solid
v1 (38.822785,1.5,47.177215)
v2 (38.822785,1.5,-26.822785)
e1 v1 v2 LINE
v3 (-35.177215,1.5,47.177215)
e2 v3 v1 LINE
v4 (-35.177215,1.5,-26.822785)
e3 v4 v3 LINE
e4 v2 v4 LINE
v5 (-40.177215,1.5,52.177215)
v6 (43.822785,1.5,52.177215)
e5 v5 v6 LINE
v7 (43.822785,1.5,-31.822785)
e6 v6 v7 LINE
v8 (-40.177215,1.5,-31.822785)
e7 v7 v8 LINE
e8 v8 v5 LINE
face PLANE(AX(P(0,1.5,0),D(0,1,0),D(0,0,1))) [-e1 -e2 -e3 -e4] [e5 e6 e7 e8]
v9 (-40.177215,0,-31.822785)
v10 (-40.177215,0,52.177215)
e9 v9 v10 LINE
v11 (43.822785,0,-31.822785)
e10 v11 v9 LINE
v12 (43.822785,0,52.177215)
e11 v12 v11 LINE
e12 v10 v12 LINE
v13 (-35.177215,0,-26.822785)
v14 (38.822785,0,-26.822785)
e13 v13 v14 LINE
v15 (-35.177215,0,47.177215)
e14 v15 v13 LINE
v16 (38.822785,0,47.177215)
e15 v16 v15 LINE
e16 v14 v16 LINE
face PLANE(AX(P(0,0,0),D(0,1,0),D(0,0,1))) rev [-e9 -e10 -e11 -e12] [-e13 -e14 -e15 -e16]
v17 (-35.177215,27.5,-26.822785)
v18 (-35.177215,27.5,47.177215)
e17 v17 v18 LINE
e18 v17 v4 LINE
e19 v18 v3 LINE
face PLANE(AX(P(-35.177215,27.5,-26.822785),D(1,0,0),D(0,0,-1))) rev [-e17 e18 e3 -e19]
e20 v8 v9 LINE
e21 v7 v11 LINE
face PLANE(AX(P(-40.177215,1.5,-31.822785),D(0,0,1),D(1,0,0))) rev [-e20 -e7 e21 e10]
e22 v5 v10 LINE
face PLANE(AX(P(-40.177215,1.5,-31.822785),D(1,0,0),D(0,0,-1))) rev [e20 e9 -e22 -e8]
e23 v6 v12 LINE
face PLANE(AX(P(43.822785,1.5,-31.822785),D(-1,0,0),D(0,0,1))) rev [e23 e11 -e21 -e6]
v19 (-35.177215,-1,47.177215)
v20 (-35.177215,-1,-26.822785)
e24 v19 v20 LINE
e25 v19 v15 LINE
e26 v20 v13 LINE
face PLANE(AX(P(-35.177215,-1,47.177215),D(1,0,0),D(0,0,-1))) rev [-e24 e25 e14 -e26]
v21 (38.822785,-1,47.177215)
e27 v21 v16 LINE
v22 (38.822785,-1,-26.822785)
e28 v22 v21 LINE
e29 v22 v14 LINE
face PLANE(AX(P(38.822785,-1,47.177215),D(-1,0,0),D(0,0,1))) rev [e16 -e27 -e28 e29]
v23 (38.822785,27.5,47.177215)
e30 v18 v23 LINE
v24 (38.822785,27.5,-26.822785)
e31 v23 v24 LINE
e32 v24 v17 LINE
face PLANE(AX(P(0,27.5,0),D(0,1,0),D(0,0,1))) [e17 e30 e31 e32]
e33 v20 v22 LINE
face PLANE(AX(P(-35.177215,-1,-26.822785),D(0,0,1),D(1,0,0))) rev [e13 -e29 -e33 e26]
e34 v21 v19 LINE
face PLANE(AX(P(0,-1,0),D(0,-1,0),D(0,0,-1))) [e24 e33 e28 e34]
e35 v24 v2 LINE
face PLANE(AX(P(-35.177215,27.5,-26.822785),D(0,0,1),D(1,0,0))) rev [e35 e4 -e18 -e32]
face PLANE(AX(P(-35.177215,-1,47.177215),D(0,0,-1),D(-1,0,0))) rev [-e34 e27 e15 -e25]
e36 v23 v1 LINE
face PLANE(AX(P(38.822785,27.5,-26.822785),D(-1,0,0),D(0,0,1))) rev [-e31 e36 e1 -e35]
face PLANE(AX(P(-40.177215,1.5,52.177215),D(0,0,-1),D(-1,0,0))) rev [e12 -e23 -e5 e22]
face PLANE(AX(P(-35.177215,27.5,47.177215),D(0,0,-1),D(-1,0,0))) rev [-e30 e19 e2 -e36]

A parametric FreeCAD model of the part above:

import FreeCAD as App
import Part
import Sketcher
Q = App.Units.Quantity

doc = App.newDocument("Part")
params = doc.addObject("Spreadsheet::Sheet", "Params")
for row, (alias, value) in enumerate([
    ("sketch1_width", "84 mm"),
    ("pad1_length", "1.5 mm"),
    ("sketch2_width", "74 mm"),
    ("pad2_length", "26 mm"),
    ("sketch3_width", "74 mm"),
    ("pad3_length", "1 mm"),
], start=1):
    params.set(f"A{row}", alias)
    params.set(f"B{row}", "=" + value)
    params.setAlias(f"B{row}", alias)

body = doc.addObject("PartDesign::Body", "Body")

sketch1 = doc.addObject("Sketcher::SketchObject", "Sketch")
body.addObject(sketch1)
sketch1.AttachmentSupport = (doc.XZ_Plane, [""])
sketch1.MapMode = "FlatFace"
sketch1.addGeometry(Part.LineSegment(App.Vector(-40, -32, 0), App.Vector(-40, 52, 0)), False)
sketch1.addGeometry(Part.LineSegment(App.Vector(-40, 52, 0), App.Vector(44, 52, 0)), False)
sketch1.addGeometry(Part.LineSegment(App.Vector(44, 52, 0), App.Vector(44, -32, 0)), False)
sketch1.addGeometry(Part.LineSegment(App.Vector(44, -32, 0), App.Vector(-40, -32, 0)), False)
sketch1.addConstraint(Sketcher.Constraint("Coincident", 0, 2, 1, 1))
sketch1.addConstraint(Sketcher.Constraint("Coincident", 1, 2, 2, 1))
sketch1.addConstraint(Sketcher.Constraint("Coincident", 2, 2, 3, 1))
sketch1.addConstraint(Sketcher.Constraint("Coincident", 3, 2, 0, 1))
sketch1.addConstraint(Sketcher.Constraint("Vertical", 0))
sketch1.addConstraint(Sketcher.Constraint("Horizontal", 1))
sketch1.addConstraint(Sketcher.Constraint("Vertical", 2))
sketch1.addConstraint(Sketcher.Constraint("Horizontal", 3))
sketch1.addConstraint(Sketcher.Constraint("Equal", 3, 0))
sketch1.addConstraint(Sketcher.Constraint("DistanceX", 1, 1, 1, 2, Q("84 mm")))
sketch1.addConstraint(Sketcher.Constraint("DistanceX", 0, 2, -1, 1, Q("40.177215 mm")))
sketch1.addConstraint(Sketcher.Constraint("DistanceY", -1, 1, 0, 2, Q("52.177215 mm")))
sketch1.setExpression("Constraints[9]", "Params.sketch1_width")
pad1 = doc.addObject("PartDesign::Pad", "Pad")
body.addObject(pad1)
pad1.Profile = sketch1
pad1.setExpression("Length", "Params.pad1_length")
pad1.Reversed = True

sketch2 = doc.addObject("Sketcher::SketchObject", "Sketch001")
body.addObject(sketch2)
sketch2.AttachmentSupport = (doc.XZ_Plane, [""])
sketch2.MapMode = "FlatFace"
sketch2.AttachmentOffset = App.Placement(App.Vector(0, 0, -1.5), App.Rotation())
sketch2.addGeometry(Part.LineSegment(App.Vector(-35, -27, 0), App.Vector(-35, 47, 0)), False)
sketch2.addGeometry(Part.LineSegment(App.Vector(-35, 47, 0), App.Vector(39, 47, 0)), False)
sketch2.addGeometry(Part.LineSegment(App.Vector(39, 47, 0), App.Vector(39, -27, 0)), False)
sketch2.addGeometry(Part.LineSegment(App.Vector(39, -27, 0), App.Vector(-35, -27, 0)), False)
sketch2.addConstraint(Sketcher.Constraint("Coincident", 0, 2, 1, 1))
sketch2.addConstraint(Sketcher.Constraint("Coincident", 1, 2, 2, 1))
sketch2.addConstraint(Sketcher.Constraint("Coincident", 2, 2, 3, 1))
sketch2.addConstraint(Sketcher.Constraint("Coincident", 3, 2, 0, 1))
sketch2.addConstraint(Sketcher.Constraint("Vertical", 0))
sketch2.addConstraint(Sketcher.Constraint("Horizontal", 1))
sketch2.addConstraint(Sketcher.Constraint("Vertical", 2))
sketch2.addConstraint(Sketcher.Constraint("Horizontal", 3))
sketch2.addConstraint(Sketcher.Constraint("Equal", 3, 0))
sketch2.addConstraint(Sketcher.Constraint("DistanceX", 1, 1, 1, 2, Q("74 mm")))
sketch2.addConstraint(Sketcher.Constraint("DistanceX", 0, 2, -1, 1, Q("35.177215 mm")))
sketch2.addConstraint(Sketcher.Constraint("DistanceY", -1, 1, 0, 2, Q("47.177215 mm")))
sketch2.setExpression("Constraints[9]", "Params.sketch2_width")
pad2 = doc.addObject("PartDesign::Pad", "Pad001")
body.addObject(pad2)
pad2.Profile = sketch2
pad2.setExpression("Length", "Params.pad2_length")
pad2.Reversed = True

sketch3 = doc.addObject("Sketcher::SketchObject", "Sketch002")
body.addObject(sketch3)
sketch3.AttachmentSupport = (doc.XZ_Plane, [""])
sketch3.MapMode = "FlatFace"
sketch3.addGeometry(Part.LineSegment(App.Vector(-35, 47, 0), App.Vector(-35, -27, 0)), False)
sketch3.addGeometry(Part.LineSegment(App.Vector(-35, -27, 0), App.Vector(39, -27, 0)), False)
sketch3.addGeometry(Part.LineSegment(App.Vector(39, -27, 0), App.Vector(39, 47, 0)), False)
sketch3.addGeometry(Part.LineSegment(App.Vector(39, 47, 0), App.Vector(-35, 47, 0)), False)
sketch3.addConstraint(Sketcher.Constraint("Coincident", 0, 2, 1, 1))
sketch3.addConstraint(Sketcher.Constraint("Coincident", 1, 2, 2, 1))
sketch3.addConstraint(Sketcher.Constraint("Coincident", 2, 2, 3, 1))
sketch3.addConstraint(Sketcher.Constraint("Coincident", 3, 2, 0, 1))
sketch3.addConstraint(Sketcher.Constraint("Vertical", 0))
sketch3.addConstraint(Sketcher.Constraint("Horizontal", 1))
sketch3.addConstraint(Sketcher.Constraint("Vertical", 2))
sketch3.addConstraint(Sketcher.Constraint("Horizontal", 3))
sketch3.addConstraint(Sketcher.Constraint("Equal", 3, 0))
sketch3.addConstraint(Sketcher.Constraint("DistanceX", 1, 1, 1, 2, Q("74 mm")))
sketch3.addConstraint(Sketcher.Constraint("DistanceX", 0, 2, -1, 1, Q("35.177215 mm")))
sketch3.addConstraint(Sketcher.Constraint("DistanceY", 0, 2, -1, 1, Q("26.822785 mm")))
sketch3.setExpression("Constraints[9]", "Params.sketch3_width")
pad3 = doc.addObject("PartDesign::Pad", "Pad002")
body.addObject(pad3)
pad3.Profile = sketch3
pad3.setExpression("Length", "Params.pad3_length")

doc.recompute()
